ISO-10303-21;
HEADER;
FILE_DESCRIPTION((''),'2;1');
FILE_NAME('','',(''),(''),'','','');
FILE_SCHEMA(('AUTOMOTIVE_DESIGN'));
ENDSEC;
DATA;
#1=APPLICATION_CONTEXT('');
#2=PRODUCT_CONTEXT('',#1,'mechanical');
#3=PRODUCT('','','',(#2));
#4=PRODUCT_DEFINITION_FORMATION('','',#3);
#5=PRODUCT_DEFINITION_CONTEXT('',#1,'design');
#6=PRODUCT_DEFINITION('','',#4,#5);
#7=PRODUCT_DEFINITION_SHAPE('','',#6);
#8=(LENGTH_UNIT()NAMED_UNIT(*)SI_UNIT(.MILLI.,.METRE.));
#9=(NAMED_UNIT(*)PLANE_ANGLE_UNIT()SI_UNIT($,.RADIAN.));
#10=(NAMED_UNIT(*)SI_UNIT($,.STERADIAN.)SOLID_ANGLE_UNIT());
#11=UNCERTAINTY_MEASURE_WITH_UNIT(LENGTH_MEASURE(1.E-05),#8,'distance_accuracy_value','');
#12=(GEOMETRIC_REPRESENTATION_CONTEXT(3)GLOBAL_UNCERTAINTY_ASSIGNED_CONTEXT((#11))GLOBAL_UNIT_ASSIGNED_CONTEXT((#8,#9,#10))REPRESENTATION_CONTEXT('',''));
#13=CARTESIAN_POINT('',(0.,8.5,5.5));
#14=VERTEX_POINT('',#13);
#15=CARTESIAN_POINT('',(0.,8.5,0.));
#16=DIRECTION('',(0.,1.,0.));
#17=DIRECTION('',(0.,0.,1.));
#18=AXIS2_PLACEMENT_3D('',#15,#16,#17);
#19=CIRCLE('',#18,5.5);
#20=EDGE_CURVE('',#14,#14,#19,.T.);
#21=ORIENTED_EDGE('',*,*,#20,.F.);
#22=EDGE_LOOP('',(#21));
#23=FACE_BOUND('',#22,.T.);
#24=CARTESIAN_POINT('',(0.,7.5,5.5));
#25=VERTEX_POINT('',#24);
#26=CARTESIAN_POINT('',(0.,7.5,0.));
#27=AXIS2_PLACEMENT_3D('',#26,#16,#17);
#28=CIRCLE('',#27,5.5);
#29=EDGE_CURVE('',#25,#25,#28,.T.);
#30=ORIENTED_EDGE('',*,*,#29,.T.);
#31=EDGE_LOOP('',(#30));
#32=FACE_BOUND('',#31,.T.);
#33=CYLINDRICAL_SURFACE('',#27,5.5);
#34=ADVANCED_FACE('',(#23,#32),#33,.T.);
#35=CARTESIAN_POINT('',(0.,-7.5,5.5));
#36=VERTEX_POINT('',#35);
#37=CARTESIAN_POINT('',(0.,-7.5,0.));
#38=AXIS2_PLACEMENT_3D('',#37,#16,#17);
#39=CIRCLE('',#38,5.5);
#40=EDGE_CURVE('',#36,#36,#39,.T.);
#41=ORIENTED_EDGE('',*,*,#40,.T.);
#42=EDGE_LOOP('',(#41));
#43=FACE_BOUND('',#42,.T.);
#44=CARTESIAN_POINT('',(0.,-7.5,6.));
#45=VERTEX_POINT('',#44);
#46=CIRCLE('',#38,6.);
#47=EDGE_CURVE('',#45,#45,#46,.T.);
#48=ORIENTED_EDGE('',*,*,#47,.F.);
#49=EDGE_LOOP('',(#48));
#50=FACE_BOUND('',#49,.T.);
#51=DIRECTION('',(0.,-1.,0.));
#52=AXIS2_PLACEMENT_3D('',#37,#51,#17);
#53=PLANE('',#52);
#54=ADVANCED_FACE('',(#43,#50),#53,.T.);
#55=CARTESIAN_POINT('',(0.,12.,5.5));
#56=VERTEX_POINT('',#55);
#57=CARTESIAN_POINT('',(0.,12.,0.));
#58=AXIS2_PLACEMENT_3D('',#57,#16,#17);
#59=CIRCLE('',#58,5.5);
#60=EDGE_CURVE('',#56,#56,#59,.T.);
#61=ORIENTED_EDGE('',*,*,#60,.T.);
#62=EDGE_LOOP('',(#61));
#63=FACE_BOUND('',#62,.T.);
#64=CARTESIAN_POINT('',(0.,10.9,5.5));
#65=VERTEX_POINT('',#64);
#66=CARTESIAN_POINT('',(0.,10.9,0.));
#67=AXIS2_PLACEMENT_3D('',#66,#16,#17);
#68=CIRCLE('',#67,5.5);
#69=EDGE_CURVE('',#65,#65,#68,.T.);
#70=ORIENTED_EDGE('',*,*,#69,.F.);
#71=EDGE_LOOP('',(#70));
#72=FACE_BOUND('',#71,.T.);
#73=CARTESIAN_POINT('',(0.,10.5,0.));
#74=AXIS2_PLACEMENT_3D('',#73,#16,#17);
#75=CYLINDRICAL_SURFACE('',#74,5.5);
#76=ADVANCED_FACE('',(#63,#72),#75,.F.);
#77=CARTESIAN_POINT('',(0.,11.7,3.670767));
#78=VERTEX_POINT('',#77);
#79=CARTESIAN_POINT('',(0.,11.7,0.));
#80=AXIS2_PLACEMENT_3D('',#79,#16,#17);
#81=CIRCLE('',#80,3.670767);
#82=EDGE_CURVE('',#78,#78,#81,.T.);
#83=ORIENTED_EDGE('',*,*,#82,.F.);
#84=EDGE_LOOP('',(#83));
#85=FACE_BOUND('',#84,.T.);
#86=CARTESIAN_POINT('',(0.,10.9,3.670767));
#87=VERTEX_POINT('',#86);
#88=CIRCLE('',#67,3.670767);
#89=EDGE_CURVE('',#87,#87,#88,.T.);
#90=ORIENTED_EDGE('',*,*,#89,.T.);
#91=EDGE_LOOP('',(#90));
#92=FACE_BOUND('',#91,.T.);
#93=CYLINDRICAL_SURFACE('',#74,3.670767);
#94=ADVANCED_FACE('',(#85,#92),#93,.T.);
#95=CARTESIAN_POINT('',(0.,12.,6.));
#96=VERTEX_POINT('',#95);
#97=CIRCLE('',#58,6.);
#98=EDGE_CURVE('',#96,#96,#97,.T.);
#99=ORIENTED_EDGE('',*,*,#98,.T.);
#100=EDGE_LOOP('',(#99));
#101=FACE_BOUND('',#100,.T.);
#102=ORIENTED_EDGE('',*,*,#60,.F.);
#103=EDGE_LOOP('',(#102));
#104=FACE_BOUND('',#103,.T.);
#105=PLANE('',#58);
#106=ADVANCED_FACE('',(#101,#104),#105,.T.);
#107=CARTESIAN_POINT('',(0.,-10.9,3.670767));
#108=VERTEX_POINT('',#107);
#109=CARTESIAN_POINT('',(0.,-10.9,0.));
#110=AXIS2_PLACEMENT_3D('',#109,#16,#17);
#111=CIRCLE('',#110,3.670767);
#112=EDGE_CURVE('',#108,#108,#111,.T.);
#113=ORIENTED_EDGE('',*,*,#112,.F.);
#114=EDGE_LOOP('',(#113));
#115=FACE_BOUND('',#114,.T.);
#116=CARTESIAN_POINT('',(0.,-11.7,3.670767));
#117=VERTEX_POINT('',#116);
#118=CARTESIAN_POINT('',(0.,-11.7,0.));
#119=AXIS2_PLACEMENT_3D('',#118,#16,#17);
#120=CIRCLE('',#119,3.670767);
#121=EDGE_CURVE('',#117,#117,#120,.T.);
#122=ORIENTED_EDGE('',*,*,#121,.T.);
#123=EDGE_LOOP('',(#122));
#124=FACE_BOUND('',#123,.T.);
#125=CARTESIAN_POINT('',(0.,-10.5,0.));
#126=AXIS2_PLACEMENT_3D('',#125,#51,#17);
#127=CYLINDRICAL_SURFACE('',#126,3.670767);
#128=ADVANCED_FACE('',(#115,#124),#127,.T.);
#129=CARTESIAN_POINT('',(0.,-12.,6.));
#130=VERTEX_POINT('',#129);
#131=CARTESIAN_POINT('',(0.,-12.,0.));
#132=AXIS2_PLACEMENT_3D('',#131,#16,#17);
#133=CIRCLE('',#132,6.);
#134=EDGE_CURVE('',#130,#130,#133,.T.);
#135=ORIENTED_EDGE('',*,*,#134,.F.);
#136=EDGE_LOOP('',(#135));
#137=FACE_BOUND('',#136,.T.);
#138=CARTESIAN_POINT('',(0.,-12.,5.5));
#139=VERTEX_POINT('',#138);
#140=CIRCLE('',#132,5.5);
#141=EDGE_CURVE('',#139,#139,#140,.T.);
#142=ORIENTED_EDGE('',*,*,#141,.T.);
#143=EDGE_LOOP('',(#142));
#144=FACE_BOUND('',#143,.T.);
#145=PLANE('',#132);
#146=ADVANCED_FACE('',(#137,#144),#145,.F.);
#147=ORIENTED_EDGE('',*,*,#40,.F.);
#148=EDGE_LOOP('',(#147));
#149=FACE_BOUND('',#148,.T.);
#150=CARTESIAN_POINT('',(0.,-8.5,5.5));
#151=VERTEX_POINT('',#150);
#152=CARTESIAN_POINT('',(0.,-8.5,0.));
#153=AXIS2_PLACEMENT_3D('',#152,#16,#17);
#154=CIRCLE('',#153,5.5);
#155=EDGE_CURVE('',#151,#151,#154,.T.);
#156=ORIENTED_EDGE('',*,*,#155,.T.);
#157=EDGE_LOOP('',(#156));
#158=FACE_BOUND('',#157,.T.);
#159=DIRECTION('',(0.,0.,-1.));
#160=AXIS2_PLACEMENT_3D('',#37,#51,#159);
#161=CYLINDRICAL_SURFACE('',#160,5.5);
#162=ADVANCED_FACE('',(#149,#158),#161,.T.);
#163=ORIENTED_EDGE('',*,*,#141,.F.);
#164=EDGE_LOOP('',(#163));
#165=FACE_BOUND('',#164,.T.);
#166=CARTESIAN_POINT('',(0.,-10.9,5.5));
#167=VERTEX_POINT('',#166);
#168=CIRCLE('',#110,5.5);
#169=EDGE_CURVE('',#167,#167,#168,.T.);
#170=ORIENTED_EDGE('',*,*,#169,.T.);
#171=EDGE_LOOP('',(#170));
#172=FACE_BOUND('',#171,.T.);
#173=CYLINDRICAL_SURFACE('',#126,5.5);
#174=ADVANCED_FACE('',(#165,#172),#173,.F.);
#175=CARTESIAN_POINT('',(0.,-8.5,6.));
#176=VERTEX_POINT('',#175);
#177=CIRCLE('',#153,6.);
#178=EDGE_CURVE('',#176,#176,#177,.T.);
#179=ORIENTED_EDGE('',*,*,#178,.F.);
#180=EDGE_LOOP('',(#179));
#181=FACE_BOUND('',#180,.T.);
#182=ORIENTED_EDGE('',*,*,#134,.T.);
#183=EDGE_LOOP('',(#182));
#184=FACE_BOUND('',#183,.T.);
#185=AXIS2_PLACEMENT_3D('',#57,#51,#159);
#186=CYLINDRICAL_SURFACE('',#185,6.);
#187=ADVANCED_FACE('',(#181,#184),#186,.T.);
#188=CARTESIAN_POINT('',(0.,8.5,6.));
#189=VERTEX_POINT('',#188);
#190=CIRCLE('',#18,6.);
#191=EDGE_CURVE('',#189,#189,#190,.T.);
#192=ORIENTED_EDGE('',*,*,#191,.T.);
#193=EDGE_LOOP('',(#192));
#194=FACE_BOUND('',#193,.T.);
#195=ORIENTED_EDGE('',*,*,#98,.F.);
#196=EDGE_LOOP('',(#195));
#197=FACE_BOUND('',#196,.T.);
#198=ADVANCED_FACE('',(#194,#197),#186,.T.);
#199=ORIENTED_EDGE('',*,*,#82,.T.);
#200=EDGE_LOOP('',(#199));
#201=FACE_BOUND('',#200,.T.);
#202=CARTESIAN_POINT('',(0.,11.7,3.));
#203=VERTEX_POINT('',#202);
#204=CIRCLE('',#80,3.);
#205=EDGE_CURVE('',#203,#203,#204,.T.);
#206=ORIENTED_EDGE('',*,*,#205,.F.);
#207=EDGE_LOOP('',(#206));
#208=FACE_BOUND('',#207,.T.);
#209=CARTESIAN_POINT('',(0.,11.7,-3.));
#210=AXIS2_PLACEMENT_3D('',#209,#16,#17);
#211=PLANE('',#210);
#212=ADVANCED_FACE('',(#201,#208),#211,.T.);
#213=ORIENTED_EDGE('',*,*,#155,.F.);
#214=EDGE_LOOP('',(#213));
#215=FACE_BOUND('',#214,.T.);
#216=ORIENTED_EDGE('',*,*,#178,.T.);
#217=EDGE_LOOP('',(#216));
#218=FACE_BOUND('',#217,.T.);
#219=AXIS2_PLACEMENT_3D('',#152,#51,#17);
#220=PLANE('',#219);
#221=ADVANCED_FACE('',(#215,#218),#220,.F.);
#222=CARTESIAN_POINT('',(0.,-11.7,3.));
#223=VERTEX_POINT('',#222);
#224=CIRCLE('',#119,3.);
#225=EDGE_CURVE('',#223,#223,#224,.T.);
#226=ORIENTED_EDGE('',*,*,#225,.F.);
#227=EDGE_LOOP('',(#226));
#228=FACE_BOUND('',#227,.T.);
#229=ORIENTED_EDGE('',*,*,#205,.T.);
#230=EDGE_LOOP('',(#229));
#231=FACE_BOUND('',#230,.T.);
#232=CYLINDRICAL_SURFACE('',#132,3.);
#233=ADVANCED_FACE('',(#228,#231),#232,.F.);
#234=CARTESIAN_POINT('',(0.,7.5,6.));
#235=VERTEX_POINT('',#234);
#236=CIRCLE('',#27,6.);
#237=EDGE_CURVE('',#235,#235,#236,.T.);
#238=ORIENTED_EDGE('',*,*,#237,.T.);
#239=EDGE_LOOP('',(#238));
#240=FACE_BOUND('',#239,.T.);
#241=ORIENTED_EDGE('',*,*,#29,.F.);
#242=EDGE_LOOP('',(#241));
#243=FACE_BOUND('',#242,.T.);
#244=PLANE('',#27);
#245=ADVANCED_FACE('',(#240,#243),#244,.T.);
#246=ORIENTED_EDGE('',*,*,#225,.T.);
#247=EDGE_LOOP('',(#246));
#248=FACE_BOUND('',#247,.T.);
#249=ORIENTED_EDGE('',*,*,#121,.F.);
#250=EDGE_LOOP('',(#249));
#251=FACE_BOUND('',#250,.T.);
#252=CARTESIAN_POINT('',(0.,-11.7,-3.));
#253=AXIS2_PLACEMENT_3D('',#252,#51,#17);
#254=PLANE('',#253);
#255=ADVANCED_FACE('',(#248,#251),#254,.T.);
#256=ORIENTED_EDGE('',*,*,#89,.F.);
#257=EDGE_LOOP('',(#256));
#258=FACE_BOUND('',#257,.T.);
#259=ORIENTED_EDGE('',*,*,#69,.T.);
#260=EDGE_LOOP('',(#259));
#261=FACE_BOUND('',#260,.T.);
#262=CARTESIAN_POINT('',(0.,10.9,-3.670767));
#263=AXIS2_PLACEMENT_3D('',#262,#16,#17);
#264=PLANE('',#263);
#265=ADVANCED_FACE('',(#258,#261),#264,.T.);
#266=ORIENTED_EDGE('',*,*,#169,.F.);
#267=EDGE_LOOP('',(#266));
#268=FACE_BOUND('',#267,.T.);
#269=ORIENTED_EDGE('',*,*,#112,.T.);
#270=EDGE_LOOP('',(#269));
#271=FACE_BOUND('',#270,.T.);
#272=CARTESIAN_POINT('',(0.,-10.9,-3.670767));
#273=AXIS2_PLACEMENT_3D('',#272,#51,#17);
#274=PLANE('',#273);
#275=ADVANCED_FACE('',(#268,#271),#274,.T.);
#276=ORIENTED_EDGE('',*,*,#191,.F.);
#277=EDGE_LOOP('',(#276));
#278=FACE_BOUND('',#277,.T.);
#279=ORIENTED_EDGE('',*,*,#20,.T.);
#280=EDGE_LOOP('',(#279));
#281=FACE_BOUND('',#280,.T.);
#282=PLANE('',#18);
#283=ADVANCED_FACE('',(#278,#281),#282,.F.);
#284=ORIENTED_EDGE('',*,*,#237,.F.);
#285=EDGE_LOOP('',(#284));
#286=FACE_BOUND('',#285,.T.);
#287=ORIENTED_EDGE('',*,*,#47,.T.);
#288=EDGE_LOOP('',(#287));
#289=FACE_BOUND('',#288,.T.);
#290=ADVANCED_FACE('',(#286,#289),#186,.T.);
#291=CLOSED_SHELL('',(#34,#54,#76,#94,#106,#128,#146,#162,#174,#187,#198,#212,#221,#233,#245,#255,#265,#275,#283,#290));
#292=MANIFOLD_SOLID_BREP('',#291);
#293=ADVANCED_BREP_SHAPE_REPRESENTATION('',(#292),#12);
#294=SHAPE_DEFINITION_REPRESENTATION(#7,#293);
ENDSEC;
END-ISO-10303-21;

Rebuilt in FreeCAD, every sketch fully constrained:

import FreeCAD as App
import Part
import Sketcher
Q = App.Units.Quantity


def add_polygon(sketch, points):
    """Adds a closed chain of lines whose ends are joined by coincident constraints."""
    first, n = sketch.GeometryCount, len(points)
    for a, b in zip(points, points[1:] + points[:1]):
        sketch.addGeometry(Part.LineSegment(App.Vector(*a, 0), App.Vector(*b, 0)), False)
    for i in range(n):
        sketch.addConstraint(Sketcher.Constraint("Coincident", first + i, 2, first + (i + 1) % n, 1))

doc = App.newDocument("Part")
body = doc.addObject("PartDesign::Body", "Body")

# Sketch on XZ plane
sketch1 = body.newObject("Sketcher::SketchObject", "Sketch")
sketch1.AttachmentSupport = (doc.getObject("XZ_Plane"), [""])
sketch1.MapMode = "FlatFace"
sketch1.addGeometry(Part.Circle(App.Vector(0, 0, 0), App.Vector(0, 0, 1), 6), False)
sketch1.addConstraint(Sketcher.Constraint("Coincident", 0, 3, -1, 1))
sketch1.addConstraint(Sketcher.Constraint("Diameter", 0, Q("12 mm")))
pad1 = body.newObject("PartDesign::Pad", "Pad")
pad1.Profile = sketch1
pad1.Length = 24
pad1.Midplane = True

# Sketch on XZ plane
sketch2 = body.newObject("Sketcher::SketchObject", "Sketch001")
sketch2.AttachmentSupport = (doc.getObject("XZ_Plane"), [""])
sketch2.MapMode = "FlatFace"
sketch2.AttachmentOffset = App.Placement(App.Vector(0, 0, -12), App.Rotation())
sketch2.addGeometry(Part.Circle(App.Vector(0, 0, 0), App.Vector(0, 0, 1), 3), False)
sketch2.addConstraint(Sketcher.Constraint("Coincident", 0, 3, -1, 1))
sketch2.addConstraint(Sketcher.Constraint("Diameter", 0, Q("6 mm")))
pocket1 = body.newObject("PartDesign::Pocket", "Pocket")
pocket1.Profile = sketch2
pocket1.Length = 24
pocket1.Reversed = True

# Sketch on XZ plane
sketch3 = body.newObject("Sketcher::SketchObject", "Sketch002")
sketch3.AttachmentSupport = (doc.getObject("XZ_Plane"), [""])
sketch3.MapMode = "FlatFace"
sketch3.AttachmentOffset = App.Placement(App.Vector(0, 0, -8.5), App.Rotation())
sketch3.addGeometry(Part.Circle(App.Vector(0, 0, 0), App.Vector(0, 0, 1), 6), False)
sketch3.addGeometry(Part.Circle(App.Vector(0, 0, 0), App.Vector(0, 0, 1), 6), False)
sketch3.addConstraint(Sketcher.Constraint("Coincident", 0, 3, -1, 1))
sketch3.addConstraint(Sketcher.Constraint("Coincident", 1, 3, -1, 1))
sketch3.addConstraint(Sketcher.Constraint("Diameter", 0, Q("12 mm")))
sketch3.addConstraint(Sketcher.Constraint("Diameter", 1, Q("11 mm")))
pocket2 = body.newObject("PartDesign::Pocket", "Pocket001")
pocket2.Profile = sketch3
pocket2.Length = 1
pocket2.Reversed = True

# Sketch on YZ plane
sketch4 = body.newObject("Sketcher::SketchObject", "Sketch003")
sketch4.AttachmentSupport = (doc.getObject("YZ_Plane"), [""])
sketch4.MapMode = "FlatFace"
add_polygon(sketch4, [(12, -3), (11.7, -3), (11.7, -3.67), (10.9, -3.67), (10.9, -5.5), (12, -5.5)])  # lines 0-5
sketch4.addConstraint(Sketcher.Constraint("Horizontal", 0))
sketch4.addConstraint(Sketcher.Constraint("Vertical", 1))
sketch4.addConstraint(Sketcher.Constraint("Horizontal", 2))
sketch4.addConstraint(Sketcher.Constraint("Vertical", 3))
sketch4.addConstraint(Sketcher.Constraint("Horizontal", 4))
sketch4.addConstraint(Sketcher.Constraint("Vertical", 5))
sketch4.addConstraint(Sketcher.Constraint("DistanceX", 0, 2, 0, 1, Q("0.3 mm")))
sketch4.addConstraint(Sketcher.Constraint("DistanceX", 2, 2, 2, 1, Q("0.8 mm")))
sketch4.addConstraint(Sketcher.Constraint("DistanceY", 5, 1, 5, 2, Q("2.5 mm")))
sketch4.addConstraint(Sketcher.Constraint("DistanceY", 0, 2, -1, 1, Q("3 mm")))
sketch4.addConstraint(Sketcher.Constraint("DistanceX", -1, 1, 4, 2, Q("12 mm")))
sketch4.addConstraint(Sketcher.Constraint("DistanceY", 1, 2, 1, 1, Q("0.670767 mm")))
groove = body.newObject("PartDesign::Groove", "Groove")
groove.Profile = sketch4
groove.ReferenceAxis = (sketch4, ["H_Axis"])
groove.Angle = 360
doc.recompute()

mirrored = body.newObject("PartDesign::Mirrored", "Mirrored")
mirrored.Originals = [pocket2, groove]
mirrored.MirrorPlane = (doc.getObject("XZ_Plane"), [""])
body.Tip = mirrored

doc.recompute()
